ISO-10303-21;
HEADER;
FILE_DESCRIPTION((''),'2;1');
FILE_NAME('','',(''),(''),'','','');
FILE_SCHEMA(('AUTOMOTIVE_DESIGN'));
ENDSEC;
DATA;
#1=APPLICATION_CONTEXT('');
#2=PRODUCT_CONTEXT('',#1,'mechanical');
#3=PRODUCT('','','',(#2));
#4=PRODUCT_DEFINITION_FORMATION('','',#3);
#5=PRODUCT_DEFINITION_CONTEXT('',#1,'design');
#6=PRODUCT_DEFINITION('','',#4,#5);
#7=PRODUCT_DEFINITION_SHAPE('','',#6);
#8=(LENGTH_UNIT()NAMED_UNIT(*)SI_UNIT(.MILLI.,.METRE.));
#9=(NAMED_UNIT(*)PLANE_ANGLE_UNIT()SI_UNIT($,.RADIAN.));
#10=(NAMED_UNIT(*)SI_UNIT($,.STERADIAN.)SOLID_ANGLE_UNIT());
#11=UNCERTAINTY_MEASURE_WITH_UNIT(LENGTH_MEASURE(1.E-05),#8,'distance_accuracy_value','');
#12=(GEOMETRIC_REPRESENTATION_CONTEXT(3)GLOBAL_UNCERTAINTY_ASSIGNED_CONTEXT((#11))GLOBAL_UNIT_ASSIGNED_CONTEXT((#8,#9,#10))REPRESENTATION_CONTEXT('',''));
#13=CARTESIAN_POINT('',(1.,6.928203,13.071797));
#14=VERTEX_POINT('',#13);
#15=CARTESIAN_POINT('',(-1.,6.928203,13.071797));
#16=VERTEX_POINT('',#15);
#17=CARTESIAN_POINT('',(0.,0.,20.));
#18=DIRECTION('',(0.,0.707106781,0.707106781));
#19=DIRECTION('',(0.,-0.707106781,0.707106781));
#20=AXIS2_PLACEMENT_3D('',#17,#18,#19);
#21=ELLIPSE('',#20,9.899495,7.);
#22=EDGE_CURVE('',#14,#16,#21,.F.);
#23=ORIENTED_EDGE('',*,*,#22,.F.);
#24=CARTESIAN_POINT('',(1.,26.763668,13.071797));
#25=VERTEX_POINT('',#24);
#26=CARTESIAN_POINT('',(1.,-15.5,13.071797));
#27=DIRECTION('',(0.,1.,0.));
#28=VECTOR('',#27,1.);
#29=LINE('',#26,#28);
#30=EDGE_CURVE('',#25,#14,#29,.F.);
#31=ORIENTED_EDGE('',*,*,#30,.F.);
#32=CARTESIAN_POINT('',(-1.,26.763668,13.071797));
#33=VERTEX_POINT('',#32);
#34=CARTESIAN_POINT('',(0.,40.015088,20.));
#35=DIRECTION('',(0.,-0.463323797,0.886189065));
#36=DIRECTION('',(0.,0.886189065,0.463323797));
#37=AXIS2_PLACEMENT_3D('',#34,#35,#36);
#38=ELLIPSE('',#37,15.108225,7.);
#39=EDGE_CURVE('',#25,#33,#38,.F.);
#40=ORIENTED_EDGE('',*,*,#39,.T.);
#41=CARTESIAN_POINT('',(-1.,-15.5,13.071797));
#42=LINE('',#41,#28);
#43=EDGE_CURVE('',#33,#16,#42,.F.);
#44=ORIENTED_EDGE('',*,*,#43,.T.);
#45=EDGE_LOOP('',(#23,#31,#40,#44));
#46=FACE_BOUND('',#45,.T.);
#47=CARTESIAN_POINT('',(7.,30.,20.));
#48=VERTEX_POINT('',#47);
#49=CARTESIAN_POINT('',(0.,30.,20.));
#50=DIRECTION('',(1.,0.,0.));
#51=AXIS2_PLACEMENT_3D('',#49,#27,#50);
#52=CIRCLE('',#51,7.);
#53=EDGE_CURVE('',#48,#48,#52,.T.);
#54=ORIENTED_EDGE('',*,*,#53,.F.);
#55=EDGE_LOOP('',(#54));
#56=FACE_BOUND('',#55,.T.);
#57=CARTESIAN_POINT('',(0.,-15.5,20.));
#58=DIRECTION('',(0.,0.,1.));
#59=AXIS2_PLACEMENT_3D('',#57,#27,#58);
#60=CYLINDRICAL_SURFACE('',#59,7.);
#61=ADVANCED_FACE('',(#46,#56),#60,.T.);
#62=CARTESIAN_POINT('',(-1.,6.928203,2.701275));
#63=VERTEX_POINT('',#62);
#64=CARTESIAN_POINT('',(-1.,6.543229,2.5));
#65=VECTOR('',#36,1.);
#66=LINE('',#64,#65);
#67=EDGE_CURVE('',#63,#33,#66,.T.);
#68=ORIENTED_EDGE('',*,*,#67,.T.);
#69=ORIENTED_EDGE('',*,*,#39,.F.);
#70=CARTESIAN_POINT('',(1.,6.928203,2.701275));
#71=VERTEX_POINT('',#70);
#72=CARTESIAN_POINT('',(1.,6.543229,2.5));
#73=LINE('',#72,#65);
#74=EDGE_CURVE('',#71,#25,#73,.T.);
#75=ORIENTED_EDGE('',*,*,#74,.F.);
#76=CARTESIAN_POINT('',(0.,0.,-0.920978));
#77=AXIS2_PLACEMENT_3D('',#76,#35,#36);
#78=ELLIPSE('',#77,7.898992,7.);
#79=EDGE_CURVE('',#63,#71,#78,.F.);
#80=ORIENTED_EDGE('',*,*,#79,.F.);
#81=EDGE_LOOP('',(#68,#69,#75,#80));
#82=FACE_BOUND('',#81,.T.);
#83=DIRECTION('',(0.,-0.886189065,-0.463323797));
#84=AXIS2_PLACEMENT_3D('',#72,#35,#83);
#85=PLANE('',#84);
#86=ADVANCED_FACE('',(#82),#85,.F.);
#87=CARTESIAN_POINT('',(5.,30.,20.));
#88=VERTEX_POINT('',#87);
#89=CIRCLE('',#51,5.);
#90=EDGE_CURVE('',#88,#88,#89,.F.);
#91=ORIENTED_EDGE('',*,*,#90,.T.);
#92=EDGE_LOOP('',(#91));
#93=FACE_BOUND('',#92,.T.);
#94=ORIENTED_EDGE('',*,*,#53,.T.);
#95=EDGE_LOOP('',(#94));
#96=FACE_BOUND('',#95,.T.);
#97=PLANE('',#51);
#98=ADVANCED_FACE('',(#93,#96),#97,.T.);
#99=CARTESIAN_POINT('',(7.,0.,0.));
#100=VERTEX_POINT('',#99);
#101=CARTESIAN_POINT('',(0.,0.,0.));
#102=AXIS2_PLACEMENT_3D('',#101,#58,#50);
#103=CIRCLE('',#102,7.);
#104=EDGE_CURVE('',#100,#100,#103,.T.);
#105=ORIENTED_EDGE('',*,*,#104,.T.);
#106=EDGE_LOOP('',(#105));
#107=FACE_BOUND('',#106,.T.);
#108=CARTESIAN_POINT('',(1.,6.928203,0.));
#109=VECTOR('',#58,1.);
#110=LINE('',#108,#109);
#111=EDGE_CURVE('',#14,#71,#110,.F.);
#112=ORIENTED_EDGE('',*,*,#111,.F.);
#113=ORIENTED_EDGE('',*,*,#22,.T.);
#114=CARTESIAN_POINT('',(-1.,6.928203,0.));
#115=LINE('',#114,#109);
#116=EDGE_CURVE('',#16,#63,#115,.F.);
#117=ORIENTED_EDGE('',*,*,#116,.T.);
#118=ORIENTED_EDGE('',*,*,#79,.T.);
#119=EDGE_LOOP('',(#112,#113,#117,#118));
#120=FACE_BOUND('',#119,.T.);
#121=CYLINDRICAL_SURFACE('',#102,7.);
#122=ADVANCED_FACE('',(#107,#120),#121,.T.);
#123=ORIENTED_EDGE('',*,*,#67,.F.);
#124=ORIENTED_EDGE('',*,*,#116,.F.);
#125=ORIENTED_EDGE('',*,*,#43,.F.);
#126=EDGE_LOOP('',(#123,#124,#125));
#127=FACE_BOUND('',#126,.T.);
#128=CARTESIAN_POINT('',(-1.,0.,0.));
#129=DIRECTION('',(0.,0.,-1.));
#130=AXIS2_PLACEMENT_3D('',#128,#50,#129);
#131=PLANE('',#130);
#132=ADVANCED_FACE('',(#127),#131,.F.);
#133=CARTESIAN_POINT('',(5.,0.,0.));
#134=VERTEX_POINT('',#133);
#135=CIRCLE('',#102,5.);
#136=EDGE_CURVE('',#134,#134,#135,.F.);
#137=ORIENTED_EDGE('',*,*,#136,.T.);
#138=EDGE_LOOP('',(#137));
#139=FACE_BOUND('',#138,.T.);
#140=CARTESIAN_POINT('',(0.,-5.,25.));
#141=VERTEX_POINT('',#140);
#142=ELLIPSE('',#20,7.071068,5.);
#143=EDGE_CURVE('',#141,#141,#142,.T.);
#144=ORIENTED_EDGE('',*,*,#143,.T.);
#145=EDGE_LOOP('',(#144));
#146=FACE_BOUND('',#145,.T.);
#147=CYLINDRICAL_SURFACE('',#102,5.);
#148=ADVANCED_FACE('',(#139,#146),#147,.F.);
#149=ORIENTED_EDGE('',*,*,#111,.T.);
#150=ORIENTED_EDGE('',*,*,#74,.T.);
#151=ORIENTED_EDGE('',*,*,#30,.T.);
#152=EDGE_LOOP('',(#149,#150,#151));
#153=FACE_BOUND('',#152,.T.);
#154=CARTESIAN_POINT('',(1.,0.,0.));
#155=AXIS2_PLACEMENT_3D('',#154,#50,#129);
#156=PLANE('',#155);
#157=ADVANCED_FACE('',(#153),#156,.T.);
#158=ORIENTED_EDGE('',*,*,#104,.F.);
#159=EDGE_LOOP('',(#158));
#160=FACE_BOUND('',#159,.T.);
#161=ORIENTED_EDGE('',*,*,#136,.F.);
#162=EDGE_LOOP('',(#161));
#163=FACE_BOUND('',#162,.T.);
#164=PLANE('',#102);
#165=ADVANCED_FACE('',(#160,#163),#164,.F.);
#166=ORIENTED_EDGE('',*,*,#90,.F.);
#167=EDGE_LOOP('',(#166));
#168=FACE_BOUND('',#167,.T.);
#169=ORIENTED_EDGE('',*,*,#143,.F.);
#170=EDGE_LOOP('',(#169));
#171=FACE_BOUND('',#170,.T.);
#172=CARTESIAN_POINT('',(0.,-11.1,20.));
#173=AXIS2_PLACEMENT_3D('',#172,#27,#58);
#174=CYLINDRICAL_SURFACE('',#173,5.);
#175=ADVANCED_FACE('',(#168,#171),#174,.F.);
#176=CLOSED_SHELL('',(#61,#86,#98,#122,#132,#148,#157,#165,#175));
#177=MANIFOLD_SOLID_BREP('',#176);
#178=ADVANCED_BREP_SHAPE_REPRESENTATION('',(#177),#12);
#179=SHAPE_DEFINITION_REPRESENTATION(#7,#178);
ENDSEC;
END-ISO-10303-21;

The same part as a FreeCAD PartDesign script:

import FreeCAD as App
import Part
import Sketcher

doc = App.newDocument("Part")
body = doc.addObject("PartDesign::Body", "Body")

# Sketch on XY plane
sketch1 = body.newObject("Sketcher::SketchObject", "Sketch")
sketch1.AttachmentSupport = (doc.getObject("XY_Plane"), [""])
sketch1.MapMode = "FlatFace"
sketch1.addGeometry([
    Part.Circle(App.Vector(0, 0, 0), App.Vector(0, 0, 1), 7),
    Part.Circle(App.Vector(0, 0, 0), App.Vector(0, 0, 1), 5),
], False)
sketch1.addConstraint([
    Sketcher.Constraint("Coincident", 0, 3, -1, 1),
    Sketcher.Constraint("Coincident", 1, 3, -1, 1),
    Sketcher.Constraint("Diameter", 0, 14.0),
    Sketcher.Constraint("Diameter", 1, 10.0),
])

# Sketch on YZ plane
sketch2 = body.newObject("Sketcher::SketchObject", "Sketch001")
sketch2.AttachmentSupport = (doc.getObject("YZ_Plane"), [""])
sketch2.MapMode = "FlatFace"
sketch2.addGeometry([
    Part.LineSegment(App.Vector(0, 0, 0), App.Vector(0, 20, 0)),
    Part.LineSegment(App.Vector(0, 20, 0), App.Vector(30, 20, 0)),
], False)
sketch2.addConstraint([
    Sketcher.Constraint("Coincident", 0, 2, 1, 1),
    Sketcher.Constraint("Vertical", 0),
    Sketcher.Constraint("Horizontal", 1),
    Sketcher.Constraint("Coincident", 0, 1, -1, 1),
    Sketcher.Constraint("DistanceX", 1, 1, 1, 2, 30.0),
    Sketcher.Constraint("DistanceY", 0, 1, 0, 2, 20.0),
])
doc.recompute()

additivepipe = body.newObject("PartDesign::AdditivePipe", "AdditivePipe")
additivepipe.Profile = sketch1
additivepipe.Spine = (sketch2, ["Edge1", "Edge2"])
additivepipe.Transition = "Right corner"

# Sketch on YZ plane
sketch3 = body.newObject("Sketcher::SketchObject", "Sketch002")
sketch3.AttachmentSupport = (doc.getObject("YZ_Plane"), [""])
sketch3.MapMode = "FlatFace"
sketch3.addGeometry([
    Part.LineSegment(App.Vector(7, 13, 0), App.Vector(7, 2, 0)),
    Part.LineSegment(App.Vector(7, 2, 0), App.Vector(28, 13, 0)),
    Part.LineSegment(App.Vector(28, 13, 0), App.Vector(7, 13, 0)),
], False)
sketch3.addConstraint([
    Sketcher.Constraint("Coincident", 0, 2, 1, 1),
    Sketcher.Constraint("Coincident", 1, 2, 2, 1),
    Sketcher.Constraint("Coincident", 2, 2, 0, 1),
    Sketcher.Constraint("Vertical", 0),
    Sketcher.Constraint("Horizontal", 2),
    Sketcher.Constraint("DistanceY", -1, 1, 0, 2, 2.5),
    Sketcher.Constraint("DistanceX", -1, 1, 1, 2, 27.5),
    Sketcher.Constraint("DistanceX", 2, 2, 2, 1, 20.956771),
    Sketcher.Constraint("DistanceY", 0, 2, 0, 1, 10.956771),
])
pad1 = body.newObject("PartDesign::Pad", "Pad")
pad1.Profile = sketch3
pad1.Length = 2
pad1.Midplane = True

doc.recompute()
